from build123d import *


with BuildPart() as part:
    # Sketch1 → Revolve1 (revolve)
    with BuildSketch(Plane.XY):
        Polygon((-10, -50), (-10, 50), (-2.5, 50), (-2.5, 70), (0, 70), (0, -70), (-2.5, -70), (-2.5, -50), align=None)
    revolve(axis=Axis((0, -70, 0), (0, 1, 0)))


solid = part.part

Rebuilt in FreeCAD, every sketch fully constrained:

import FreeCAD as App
import Part
import Sketcher
from FreeCAD import Vector

doc = App.newDocument("Part")
body = doc.addObject("PartDesign::Body", "Body")

sketch1 = doc.addObject("Sketcher::SketchObject", "Sketch")
body.addObject(sketch1)
sketch1.AttachmentSupport = (doc.XY_Plane, [""])
sketch1.MapMode = "FlatFace"
sketch1.addGeometry([
    Part.LineSegment(Vector(-10, 50, 0), Vector(-10, -50, 0)),
    Part.LineSegment(Vector(-10, -50, 0), Vector(-2.5, -50, 0)),
    Part.LineSegment(Vector(-2.5, -50, 0), Vector(-2.5, -70, 0)),
    Part.LineSegment(Vector(-2.5, -70, 0), Vector(0, -70, 0)),
    Part.LineSegment(Vector(0, -70, 0), Vector(0, 70, 0)),
    Part.LineSegment(Vector(0, 70, 0), Vector(-2.5, 70, 0)),
    Part.LineSegment(Vector(-2.5, 70, 0), Vector(-2.5, 50, 0)),
    Part.LineSegment(Vector(-2.5, 50, 0), Vector(-10, 50, 0)),
], False)
sketch1.addConstraint([
    Sketcher.Constraint("Coincident", 0, 2, 1, 1),
    Sketcher.Constraint("Coincident", 1, 2, 2, 1),
    Sketcher.Constraint("Coincident", 2, 2, 3, 1),
    Sketcher.Constraint("Coincident", 3, 2, 4, 1),
    Sketcher.Constraint("Coincident", 4, 2, 5, 1),
    Sketcher.Constraint("Coincident", 5, 2, 6, 1),
    Sketcher.Constraint("Coincident", 6, 2, 7, 1),
    Sketcher.Constraint("Coincident", 7, 2, 0, 1),
    Sketcher.Constraint("Vertical", 0),
    Sketcher.Constraint("Horizontal", 1),
    Sketcher.Constraint("Vertical", 2),
    Sketcher.Constraint("Horizontal", 3),
    Sketcher.Constraint("Vertical", 4),
    Sketcher.Constraint("Horizontal", 5),
    Sketcher.Constraint("Vertical", 6),
    Sketcher.Constraint("Horizontal", 7),
    Sketcher.Constraint("Symmetric", 3, 2, 4, 2, -1, 1),
    Sketcher.Constraint("Symmetric", 1, 2, 6, 2, -1),
    Sketcher.Constraint("DistanceY", 0, 2, 0, 1, 100.0),
    Sketcher.Constraint("DistanceY", 2, 2, 2, 1, 20.0),
    Sketcher.Constraint("DistanceX", 1, 1, 1, 2, 7.5),
    Sketcher.Constraint("DistanceX", 3, 1, 3, 2, 2.5),
])
revolution = doc.addObject("PartDesign::Revolution", "Revolution")
body.addObject(revolution)
revolution.Profile = sketch1
revolution.ReferenceAxis = (sketch1, ["V_Axis"])
revolution.Angle = 360

doc.recompute()
